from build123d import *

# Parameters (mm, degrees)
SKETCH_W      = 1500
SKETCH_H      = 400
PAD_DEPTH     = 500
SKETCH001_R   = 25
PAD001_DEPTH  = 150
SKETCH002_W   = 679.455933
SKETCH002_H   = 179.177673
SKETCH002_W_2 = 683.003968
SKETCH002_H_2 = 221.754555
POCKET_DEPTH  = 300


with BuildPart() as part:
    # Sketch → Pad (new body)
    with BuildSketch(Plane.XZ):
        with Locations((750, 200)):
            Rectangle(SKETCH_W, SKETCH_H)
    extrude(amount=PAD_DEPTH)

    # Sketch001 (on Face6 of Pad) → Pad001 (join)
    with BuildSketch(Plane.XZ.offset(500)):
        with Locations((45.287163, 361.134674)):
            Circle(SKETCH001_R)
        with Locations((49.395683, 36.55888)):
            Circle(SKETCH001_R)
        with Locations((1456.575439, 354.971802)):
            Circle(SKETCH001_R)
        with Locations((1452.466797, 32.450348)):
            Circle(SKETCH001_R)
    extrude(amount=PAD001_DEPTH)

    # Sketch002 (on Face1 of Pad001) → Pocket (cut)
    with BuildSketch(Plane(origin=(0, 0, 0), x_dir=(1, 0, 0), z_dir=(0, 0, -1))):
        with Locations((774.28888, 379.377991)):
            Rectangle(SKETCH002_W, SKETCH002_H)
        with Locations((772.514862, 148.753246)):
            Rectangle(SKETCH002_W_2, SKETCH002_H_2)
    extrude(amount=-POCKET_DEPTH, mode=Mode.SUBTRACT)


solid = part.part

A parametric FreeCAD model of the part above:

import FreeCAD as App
import Part
import Sketcher
Q = App.Units.Quantity


def add_polygon(sketch, points):
    """Adds a closed chain of lines whose ends are joined by coincident constraints."""
    first, n = sketch.GeometryCount, len(points)
    for a, b in zip(points, points[1:] + points[:1]):
        sketch.addGeometry(Part.LineSegment(App.Vector(*a, 0), App.Vector(*b, 0)), False)
    for i in range(n):
        sketch.addConstraint(Sketcher.Constraint("Coincident", first + i, 2, first + (i + 1) % n, 1))

doc = App.newDocument("Part")
params = doc.addObject("Spreadsheet::Sheet", "Params")
for row, (alias, value) in enumerate([
    ("sketch1_width", "1500 mm"),
    ("sketch1_height", "400 mm"),
    ("pad1_length", "500 mm"),
    ("sketch2_diameter", "50 mm"),
    ("pad2_length", "150 mm"),
    ("pocket1_length", "300 mm"),
], start=1):
    params.set(f"A{row}", alias)
    params.set(f"B{row}", "=" + value)
    params.setAlias(f"B{row}", alias)

body = doc.addObject("PartDesign::Body", "Body")

# Sketch on XZ plane
sketch1 = doc.addObject("Sketcher::SketchObject", "Sketch")
body.addObject(sketch1)
sketch1.AttachmentSupport = (doc.XZ_Plane, [""])
sketch1.MapMode = "FlatFace"
add_polygon(sketch1, [(0, 400), (0, 0), (1500, 0), (1500, 400)])  # lines 0-3
sketch1.addConstraint(Sketcher.Constraint("Vertical", 0))
sketch1.addConstraint(Sketcher.Constraint("Horizontal", 1))
sketch1.addConstraint(Sketcher.Constraint("Vertical", 2))
sketch1.addConstraint(Sketcher.Constraint("Horizontal", 3))
sketch1.addConstraint(Sketcher.Constraint("Coincident", 0, 2, -1, 1))
sketch1.addConstraint(Sketcher.Constraint("DistanceX", 1, 1, 1, 2, Q("1500 mm")))
sketch1.addConstraint(Sketcher.Constraint("DistanceY", 0, 2, 0, 1, Q("400 mm")))
sketch1.setExpression("Constraints[9]", "Params.sketch1_width")
sketch1.setExpression("Constraints[10]", "Params.sketch1_height")
pad1 = doc.addObject("PartDesign::Pad", "Pad")
body.addObject(pad1)
pad1.Profile = sketch1
pad1.setExpression("Length", "Params.pad1_length")

# Sketch on XZ plane
sketch2 = doc.addObject("Sketcher::SketchObject", "Sketch001")
body.addObject(sketch2)
sketch2.AttachmentSupport = (doc.XZ_Plane, [""])
sketch2.MapMode = "FlatFace"
sketch2.AttachmentOffset = App.Placement(App.Vector(0, 0, 500), App.Rotation())
sketch2.addGeometry(Part.Circle(App.Vector(45, 361, 0), App.Vector(0, 0, 1), 25), False)
sketch2.addGeometry(Part.Circle(App.Vector(49, 37, 0), App.Vector(0, 0, 1), 25), False)
sketch2.addGeometry(Part.Circle(App.Vector(1457, 355, 0), App.Vector(0, 0, 1), 25), False)
sketch2.addGeometry(Part.Circle(App.Vector(1452, 32, 0), App.Vector(0, 0, 1), 25), False)
sketch2.addConstraint(Sketcher.Constraint("Equal", 0, 1))
sketch2.addConstraint(Sketcher.Constraint("Equal", 1, 2))
sketch2.addConstraint(Sketcher.Constraint("Equal", 2, 3))
sketch2.addConstraint(Sketcher.Constraint("Diameter", 0, Q("50 mm")))
sketch2.addConstraint(Sketcher.Constraint("DistanceY", -1, 1, 1, 3, Q("36.55888 mm")))
sketch2.addConstraint(Sketcher.Constraint("DistanceX", -1, 1, 2, 3, Q("1456.575439 mm")))
sketch2.addConstraint(Sketcher.Constraint("DistanceX", 0, 3, 1, 3, Q("4.10852 mm")))
sketch2.addConstraint(Sketcher.Constraint("DistanceY", 2, 3, 0, 3, Q("6.162872 mm")))
sketch2.addConstraint(Sketcher.Constraint("DistanceX", 3, 3, 2, 3, Q("4.108642 mm")))
sketch2.addConstraint(Sketcher.Constraint("DistanceX", -1, 1, 0, 3, Q("45.287163 mm")))
sketch2.addConstraint(Sketcher.Constraint("DistanceY", -1, 1, 0, 3, Q("361.134674 mm")))
sketch2.addConstraint(Sketcher.Constraint("DistanceY", -1, 1, 3, 3, Q("32.450348 mm")))
sketch2.setExpression("Constraints[3]", "Params.sketch2_diameter")
pad2 = doc.addObject("PartDesign::Pad", "Pad001")
body.addObject(pad2)
pad2.Profile = sketch2
pad2.setExpression("Length", "Params.pad2_length")

# Sketch on XY plane
sketch3 = doc.addObject("Sketcher::SketchObject", "Sketch002")
body.addObject(sketch3)
sketch3.AttachmentSupport = (doc.XY_Plane, [""])
sketch3.MapMode = "FlatFace"
add_polygon(sketch3, [(435, -469), (435, -290), (1114, -290), (1114, -469)])  # lines 0-3
add_polygon(sketch3, [(431, -260), (431, -38), (1114, -38), (1114, -260)])  # lines 4-7
sketch3.addConstraint(Sketcher.Constraint("Vertical", 0))
sketch3.addConstraint(Sketcher.Constraint("Horizontal", 1))
sketch3.addConstraint(Sketcher.Constraint("Vertical", 2))
sketch3.addConstraint(Sketcher.Constraint("Horizontal", 3))
sketch3.addConstraint(Sketcher.Constraint("Vertical", 4))
sketch3.addConstraint(Sketcher.Constraint("Horizontal", 5))
sketch3.addConstraint(Sketcher.Constraint("Vertical", 6))
sketch3.addConstraint(Sketcher.Constraint("Horizontal", 7))
sketch3.addConstraint(Sketcher.Constraint("Vertical", 2, 2, 5, 2))
sketch3.addConstraint(Sketcher.Constraint("DistanceX", 5, 1, 5, 2, Q("683.003968 mm")))
sketch3.addConstraint(Sketcher.Constraint("DistanceX", 1, 1, 1, 2, Q("679.455933 mm")))
sketch3.addConstraint(Sketcher.Constraint("DistanceY", 0, 1, 0, 2, Q("179.177673 mm")))
sketch3.addConstraint(Sketcher.Constraint("DistanceY", 4, 1, 4, 2, Q("221.754555 mm")))
sketch3.addConstraint(Sketcher.Constraint("DistanceX", -1, 1, 4, 2, Q("431.012878 mm")))
sketch3.addConstraint(Sketcher.Constraint("DistanceY", 4, 2, -1, 1, Q("37.875968 mm")))
sketch3.addConstraint(Sketcher.Constraint("DistanceY", 3, 2, 4, 2, Q("431.090859 mm")))
pocket1 = doc.addObject("PartDesign::Pocket", "Pocket")
body.addObject(pocket1)
pocket1.Profile = sketch3
pocket1.setExpression("Length", "Params.pocket1_length")
pocket1.Reversed = True

doc.recompute()
